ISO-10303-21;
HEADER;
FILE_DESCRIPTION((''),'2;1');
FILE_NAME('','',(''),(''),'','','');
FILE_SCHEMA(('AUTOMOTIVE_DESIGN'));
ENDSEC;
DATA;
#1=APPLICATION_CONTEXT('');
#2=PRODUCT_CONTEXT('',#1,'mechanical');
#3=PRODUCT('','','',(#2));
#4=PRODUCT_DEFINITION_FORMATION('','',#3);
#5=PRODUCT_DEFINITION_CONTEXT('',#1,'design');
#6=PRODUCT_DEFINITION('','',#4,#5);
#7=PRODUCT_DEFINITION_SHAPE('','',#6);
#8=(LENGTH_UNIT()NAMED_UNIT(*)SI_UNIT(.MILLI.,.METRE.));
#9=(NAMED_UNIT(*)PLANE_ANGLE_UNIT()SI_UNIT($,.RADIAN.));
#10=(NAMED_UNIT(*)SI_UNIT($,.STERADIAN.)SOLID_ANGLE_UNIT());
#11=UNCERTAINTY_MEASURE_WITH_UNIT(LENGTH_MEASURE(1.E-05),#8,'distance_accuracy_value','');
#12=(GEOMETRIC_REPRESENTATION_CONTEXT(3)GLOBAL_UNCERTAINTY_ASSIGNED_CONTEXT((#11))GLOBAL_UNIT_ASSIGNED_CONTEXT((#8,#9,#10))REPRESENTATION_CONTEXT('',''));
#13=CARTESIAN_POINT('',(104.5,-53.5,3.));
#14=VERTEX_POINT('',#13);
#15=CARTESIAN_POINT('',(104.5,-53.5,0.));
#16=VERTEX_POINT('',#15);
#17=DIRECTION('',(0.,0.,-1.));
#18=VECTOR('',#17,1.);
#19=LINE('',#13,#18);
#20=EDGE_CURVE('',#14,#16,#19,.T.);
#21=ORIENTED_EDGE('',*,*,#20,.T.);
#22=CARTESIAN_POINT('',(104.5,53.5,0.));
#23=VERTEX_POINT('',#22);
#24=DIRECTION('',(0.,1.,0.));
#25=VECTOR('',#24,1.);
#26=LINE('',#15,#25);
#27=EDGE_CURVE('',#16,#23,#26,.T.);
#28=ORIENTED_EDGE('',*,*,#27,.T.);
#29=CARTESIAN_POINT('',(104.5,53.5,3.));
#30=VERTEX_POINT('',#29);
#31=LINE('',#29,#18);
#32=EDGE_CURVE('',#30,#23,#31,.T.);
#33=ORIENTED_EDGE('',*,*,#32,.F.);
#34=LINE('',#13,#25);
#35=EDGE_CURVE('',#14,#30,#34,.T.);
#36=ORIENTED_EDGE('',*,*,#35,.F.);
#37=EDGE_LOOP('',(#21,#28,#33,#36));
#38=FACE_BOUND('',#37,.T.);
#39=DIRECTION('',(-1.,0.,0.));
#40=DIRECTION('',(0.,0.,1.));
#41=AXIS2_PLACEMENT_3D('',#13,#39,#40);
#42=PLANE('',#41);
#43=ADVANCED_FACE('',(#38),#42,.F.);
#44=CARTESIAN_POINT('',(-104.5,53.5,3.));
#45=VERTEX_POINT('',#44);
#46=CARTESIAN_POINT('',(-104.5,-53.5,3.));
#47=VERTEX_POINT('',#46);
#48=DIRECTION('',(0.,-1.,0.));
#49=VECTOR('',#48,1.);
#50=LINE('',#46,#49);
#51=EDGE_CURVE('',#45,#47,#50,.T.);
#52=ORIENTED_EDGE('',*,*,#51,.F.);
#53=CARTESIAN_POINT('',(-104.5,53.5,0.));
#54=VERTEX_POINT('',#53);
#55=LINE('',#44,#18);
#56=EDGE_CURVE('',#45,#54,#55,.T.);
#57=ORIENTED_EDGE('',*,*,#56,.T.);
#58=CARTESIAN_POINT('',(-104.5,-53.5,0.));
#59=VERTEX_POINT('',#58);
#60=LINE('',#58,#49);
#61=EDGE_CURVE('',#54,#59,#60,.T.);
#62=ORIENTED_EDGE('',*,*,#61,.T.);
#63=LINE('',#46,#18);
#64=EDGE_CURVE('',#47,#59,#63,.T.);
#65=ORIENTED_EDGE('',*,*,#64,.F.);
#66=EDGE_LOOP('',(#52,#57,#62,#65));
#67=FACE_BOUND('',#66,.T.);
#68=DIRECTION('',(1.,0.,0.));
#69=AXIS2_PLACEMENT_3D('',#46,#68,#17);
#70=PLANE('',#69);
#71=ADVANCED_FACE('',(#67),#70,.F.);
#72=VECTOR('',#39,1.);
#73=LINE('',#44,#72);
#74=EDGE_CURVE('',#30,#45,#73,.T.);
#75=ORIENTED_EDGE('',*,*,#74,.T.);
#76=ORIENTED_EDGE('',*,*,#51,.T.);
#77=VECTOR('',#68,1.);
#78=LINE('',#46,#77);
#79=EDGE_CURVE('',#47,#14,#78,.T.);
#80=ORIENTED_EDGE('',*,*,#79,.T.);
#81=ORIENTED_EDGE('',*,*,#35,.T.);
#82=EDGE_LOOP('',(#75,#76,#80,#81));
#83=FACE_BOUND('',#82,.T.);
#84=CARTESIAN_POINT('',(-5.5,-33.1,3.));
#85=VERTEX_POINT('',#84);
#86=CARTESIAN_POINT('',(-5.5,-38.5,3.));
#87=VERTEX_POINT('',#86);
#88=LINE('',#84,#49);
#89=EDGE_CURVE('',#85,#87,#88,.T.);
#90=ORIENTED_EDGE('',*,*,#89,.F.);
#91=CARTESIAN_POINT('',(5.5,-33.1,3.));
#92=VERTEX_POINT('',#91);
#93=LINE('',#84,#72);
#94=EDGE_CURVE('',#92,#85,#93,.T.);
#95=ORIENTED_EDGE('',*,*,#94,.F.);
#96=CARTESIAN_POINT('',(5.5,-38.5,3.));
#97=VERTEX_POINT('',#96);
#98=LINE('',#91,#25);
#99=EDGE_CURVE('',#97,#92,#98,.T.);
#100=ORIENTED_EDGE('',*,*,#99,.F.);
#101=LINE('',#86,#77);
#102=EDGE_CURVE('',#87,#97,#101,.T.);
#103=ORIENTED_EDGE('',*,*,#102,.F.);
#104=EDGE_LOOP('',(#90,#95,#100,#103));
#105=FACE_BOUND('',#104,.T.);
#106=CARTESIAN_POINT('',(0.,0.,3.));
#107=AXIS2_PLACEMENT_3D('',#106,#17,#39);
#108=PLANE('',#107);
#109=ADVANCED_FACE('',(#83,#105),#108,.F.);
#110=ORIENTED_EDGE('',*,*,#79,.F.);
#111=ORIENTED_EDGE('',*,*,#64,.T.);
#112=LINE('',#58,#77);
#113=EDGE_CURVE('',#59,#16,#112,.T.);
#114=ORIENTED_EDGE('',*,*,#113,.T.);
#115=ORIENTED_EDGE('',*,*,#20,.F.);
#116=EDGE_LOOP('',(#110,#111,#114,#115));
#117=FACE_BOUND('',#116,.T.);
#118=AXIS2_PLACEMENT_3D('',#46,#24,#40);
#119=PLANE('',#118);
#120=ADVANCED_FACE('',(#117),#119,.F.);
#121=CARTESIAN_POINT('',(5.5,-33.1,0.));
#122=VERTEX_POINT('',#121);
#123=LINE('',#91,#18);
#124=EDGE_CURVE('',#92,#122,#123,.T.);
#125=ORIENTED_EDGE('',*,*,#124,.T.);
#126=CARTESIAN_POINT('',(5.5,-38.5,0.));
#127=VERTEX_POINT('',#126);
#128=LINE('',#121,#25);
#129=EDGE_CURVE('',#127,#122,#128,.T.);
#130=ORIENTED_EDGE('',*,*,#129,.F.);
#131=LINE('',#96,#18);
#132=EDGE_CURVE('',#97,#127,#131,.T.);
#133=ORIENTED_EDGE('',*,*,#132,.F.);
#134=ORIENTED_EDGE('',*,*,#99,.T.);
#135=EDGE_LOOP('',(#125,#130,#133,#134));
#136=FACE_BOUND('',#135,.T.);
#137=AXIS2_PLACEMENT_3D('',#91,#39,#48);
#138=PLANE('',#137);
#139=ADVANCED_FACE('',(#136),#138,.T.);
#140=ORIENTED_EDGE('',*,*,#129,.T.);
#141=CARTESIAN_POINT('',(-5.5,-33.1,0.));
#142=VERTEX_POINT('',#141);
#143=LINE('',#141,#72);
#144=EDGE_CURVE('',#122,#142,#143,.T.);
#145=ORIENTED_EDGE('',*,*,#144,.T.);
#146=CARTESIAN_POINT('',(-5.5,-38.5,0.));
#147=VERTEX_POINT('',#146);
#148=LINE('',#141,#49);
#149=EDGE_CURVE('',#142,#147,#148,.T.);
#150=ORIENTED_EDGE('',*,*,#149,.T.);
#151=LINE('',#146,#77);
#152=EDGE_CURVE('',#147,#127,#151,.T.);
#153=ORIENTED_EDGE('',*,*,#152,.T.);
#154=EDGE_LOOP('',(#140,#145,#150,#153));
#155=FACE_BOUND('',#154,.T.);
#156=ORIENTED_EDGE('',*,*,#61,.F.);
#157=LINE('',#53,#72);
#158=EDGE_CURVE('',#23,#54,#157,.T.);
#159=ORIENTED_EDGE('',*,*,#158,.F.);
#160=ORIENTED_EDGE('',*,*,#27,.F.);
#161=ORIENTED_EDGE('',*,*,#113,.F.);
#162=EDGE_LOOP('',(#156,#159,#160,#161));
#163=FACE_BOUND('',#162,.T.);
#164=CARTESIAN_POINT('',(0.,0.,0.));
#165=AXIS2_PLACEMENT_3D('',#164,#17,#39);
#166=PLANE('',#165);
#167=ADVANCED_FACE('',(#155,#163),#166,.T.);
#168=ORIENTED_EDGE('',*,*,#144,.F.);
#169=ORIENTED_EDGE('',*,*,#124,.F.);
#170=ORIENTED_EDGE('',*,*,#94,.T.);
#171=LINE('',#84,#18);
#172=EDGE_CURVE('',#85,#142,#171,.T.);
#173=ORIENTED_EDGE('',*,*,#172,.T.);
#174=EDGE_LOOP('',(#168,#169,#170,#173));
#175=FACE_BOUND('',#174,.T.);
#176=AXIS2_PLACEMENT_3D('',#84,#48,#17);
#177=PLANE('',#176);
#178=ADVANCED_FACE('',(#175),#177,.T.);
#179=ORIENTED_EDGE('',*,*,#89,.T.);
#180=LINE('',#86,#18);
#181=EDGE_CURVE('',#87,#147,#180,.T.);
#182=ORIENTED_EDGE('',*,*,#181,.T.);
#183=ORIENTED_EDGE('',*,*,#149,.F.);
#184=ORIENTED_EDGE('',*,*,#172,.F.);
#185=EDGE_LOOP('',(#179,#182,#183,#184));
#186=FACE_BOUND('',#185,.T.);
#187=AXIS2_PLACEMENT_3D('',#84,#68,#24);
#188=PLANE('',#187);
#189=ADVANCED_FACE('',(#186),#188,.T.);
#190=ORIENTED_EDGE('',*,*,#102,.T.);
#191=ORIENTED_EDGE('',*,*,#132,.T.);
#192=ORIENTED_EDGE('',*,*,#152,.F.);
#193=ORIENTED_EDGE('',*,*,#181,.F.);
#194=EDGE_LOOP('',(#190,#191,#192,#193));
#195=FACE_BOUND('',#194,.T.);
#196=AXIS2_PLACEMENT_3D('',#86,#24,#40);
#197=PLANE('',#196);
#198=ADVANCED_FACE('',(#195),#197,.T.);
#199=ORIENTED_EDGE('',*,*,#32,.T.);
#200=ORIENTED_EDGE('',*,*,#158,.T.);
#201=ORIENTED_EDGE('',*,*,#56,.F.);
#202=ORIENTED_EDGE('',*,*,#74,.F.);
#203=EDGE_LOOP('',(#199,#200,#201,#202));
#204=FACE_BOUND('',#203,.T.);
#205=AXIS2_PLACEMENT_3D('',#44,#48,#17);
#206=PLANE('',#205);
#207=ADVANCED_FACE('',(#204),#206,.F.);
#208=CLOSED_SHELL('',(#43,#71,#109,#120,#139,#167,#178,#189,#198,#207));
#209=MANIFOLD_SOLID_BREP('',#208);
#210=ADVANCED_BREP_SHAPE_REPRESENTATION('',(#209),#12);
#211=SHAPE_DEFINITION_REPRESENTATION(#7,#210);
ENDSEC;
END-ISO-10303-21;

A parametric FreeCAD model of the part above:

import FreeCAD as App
import Part
import Sketcher
from FreeCAD import Vector
Q = App.Units.Quantity

doc = App.newDocument("Part")
body = doc.addObject("PartDesign::Body", "Body")

# Sketch on XY plane
sketch1 = doc.addObject("Sketcher::SketchObject", "Sketch")
body.addObject(sketch1)
sketch1.AttachmentSupport = (doc.XY_Plane, [""])
sketch1.MapMode = "FlatFace"
sketch1.addGeometry([
    Part.LineSegment(Vector(-104, 54, 0), Vector(-104, -54, 0)),  # 0
    Part.LineSegment(Vector(-104, -54, 0), Vector(104, -54, 0)),  # 1
    Part.LineSegment(Vector(104, -54, 0), Vector(104, 54, 0)),  # 2
    Part.LineSegment(Vector(104, 54, 0), Vector(-104, 54, 0)),  # 3
    Part.LineSegment(Vector(6, -38, 0), Vector(-6, -38, 0)),  # 4
    Part.LineSegment(Vector(-6, -38, 0), Vector(-6, -33, 0)),  # 5
    Part.LineSegment(Vector(-6, -33, 0), Vector(6, -33, 0)),  # 6
    Part.LineSegment(Vector(6, -33, 0), Vector(6, -38, 0)),  # 7
], False)
sketch1.addConstraint([
    Sketcher.Constraint("Coincident", 0, 2, 1, 1),
    Sketcher.Constraint("Coincident", 1, 2, 2, 1),
    Sketcher.Constraint("Coincident", 2, 2, 3, 1),
    Sketcher.Constraint("Coincident", 3, 2, 0, 1),
    Sketcher.Constraint("Coincident", 4, 2, 5, 1),
    Sketcher.Constraint("Coincident", 5, 2, 6, 1),
    Sketcher.Constraint("Coincident", 6, 2, 7, 1),
    Sketcher.Constraint("Coincident", 7, 2, 4, 1),
    Sketcher.Constraint("Vertical", 0),
    Sketcher.Constraint("Horizontal", 1),
    Sketcher.Constraint("Vertical", 2),
    Sketcher.Constraint("Horizontal", 3),
    Sketcher.Constraint("Horizontal", 4),
    Sketcher.Constraint("Vertical", 5),
    Sketcher.Constraint("Horizontal", 6),
    Sketcher.Constraint("Vertical", 7),
    Sketcher.Constraint("Symmetric", 0, 2, 2, 2, -1, 1),
    Sketcher.Constraint("DistanceX", 1, 1, 1, 2, Q("209 mm")),
    Sketcher.Constraint("DistanceX", 4, 2, 4, 1, Q("11 mm")),
    Sketcher.Constraint("DistanceY", 0, 2, 0, 1, Q("107 mm")),
    Sketcher.Constraint("DistanceY", 5, 1, 5, 2, Q("5.4 mm")),
    Sketcher.Constraint("DistanceX", 0, 2, 4, 2, Q("99 mm")),
    Sketcher.Constraint("DistanceY", 0, 2, 4, 2, Q("15 mm")),
])
pad1 = doc.addObject("PartDesign::Pad", "Pad")
body.addObject(pad1)
pad1.Profile = sketch1
pad1.Length = 3

doc.recompute()
